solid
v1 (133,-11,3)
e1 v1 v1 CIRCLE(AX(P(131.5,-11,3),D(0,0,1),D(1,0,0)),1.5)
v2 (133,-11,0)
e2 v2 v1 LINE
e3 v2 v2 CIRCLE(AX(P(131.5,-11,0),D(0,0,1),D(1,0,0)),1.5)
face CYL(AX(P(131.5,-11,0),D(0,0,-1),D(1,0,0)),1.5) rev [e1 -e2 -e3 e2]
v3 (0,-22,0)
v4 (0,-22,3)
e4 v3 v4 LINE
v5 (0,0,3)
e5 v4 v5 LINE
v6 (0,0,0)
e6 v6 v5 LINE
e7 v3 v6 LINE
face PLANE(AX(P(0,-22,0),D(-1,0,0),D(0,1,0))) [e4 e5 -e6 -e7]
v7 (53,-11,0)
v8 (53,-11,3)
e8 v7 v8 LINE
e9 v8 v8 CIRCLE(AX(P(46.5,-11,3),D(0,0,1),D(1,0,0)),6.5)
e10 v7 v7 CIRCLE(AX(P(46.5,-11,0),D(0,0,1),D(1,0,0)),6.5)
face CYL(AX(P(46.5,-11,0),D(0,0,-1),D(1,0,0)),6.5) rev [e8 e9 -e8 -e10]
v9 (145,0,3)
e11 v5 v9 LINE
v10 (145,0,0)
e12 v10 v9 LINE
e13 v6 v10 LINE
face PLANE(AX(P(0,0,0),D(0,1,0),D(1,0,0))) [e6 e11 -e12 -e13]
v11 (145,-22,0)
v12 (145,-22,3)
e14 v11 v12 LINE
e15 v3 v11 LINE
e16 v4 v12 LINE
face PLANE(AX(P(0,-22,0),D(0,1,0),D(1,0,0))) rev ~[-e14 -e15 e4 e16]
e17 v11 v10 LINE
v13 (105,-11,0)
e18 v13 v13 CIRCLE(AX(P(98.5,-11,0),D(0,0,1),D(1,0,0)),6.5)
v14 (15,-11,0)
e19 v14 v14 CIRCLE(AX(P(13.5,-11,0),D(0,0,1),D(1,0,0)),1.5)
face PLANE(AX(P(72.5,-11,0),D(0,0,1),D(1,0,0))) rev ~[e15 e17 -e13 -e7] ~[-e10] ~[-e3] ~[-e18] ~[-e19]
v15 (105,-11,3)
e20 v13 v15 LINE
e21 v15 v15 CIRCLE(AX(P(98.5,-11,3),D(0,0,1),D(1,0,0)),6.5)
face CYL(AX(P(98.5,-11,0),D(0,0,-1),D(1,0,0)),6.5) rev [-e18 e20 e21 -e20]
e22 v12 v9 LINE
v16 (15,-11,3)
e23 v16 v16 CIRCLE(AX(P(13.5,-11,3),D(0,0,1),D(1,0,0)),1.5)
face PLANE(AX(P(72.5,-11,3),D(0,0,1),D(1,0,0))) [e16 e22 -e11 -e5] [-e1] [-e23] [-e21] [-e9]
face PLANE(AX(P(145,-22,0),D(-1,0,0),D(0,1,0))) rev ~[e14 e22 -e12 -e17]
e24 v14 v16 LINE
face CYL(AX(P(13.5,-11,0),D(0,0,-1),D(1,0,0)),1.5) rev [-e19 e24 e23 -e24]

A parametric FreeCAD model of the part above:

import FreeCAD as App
import Part
import Sketcher

V = App.Vector
Q = App.Units.Quantity


def add_polygon(sketch, points):
    """Adds a closed chain of lines whose ends are joined by coincident constraints."""
    first, n = sketch.GeometryCount, len(points)
    for a, b in zip(points, points[1:] + points[:1]):
        sketch.addGeometry(Part.LineSegment(App.Vector(*a, 0), App.Vector(*b, 0)), False)
    for i in range(n):
        sketch.addConstraint(Sketcher.Constraint("Coincident", first + i, 2, first + (i + 1) % n, 1))

doc = App.newDocument("Part")
body = doc.addObject("PartDesign::Body", "Body")

# Sketch on XY plane
sketch1 = body.newObject("Sketcher::SketchObject", "Sketch")
sketch1.AttachmentSupport = (doc.getObject("XY_Plane"), [""])
sketch1.MapMode = "FlatFace"
add_polygon(sketch1, [(0, 0), (0, -22), (145, -22), (145, 0)])  # lines 0-3
sketch1.addGeometry(Part.Circle(V(13.5, -11, 0), V(0, 0, 1), 1.5), False)  # 4
sketch1.addGeometry(Part.Circle(V(46.5, -11, 0), V(0, 0, 1), 6.5), False)  # 5
sketch1.addGeometry(Part.Circle(V(98.5, -11, 0), V(0, 0, 1), 6.5), False)  # 6
sketch1.addGeometry(Part.Circle(V(131.5, -11, 0), V(0, 0, 1), 1.5), False)  # 7
sketch1.addConstraint([
    Sketcher.Constraint("Vertical", 0),
    Sketcher.Constraint("Horizontal", 1),
    Sketcher.Constraint("Vertical", 2),
    Sketcher.Constraint("Horizontal", 3),
    Sketcher.Constraint("Coincident", 3, 2, -1, 1),
    Sketcher.Constraint("Equal", 5, 6),
    Sketcher.Constraint("Equal", 4, 7),
    Sketcher.Constraint("Horizontal", 4, 3, 5, 3),
    Sketcher.Constraint("Horizontal", 5, 3, 6, 3),
    Sketcher.Constraint("Horizontal", 6, 3, 7, 3),
    Sketcher.Constraint("Diameter", 4, Q("3 mm")),
    Sketcher.Constraint("Diameter", 5, Q("13 mm")),
    Sketcher.Constraint("DistanceX", 1, 1, 1, 2, Q("145 mm")),
    Sketcher.Constraint("DistanceY", 0, 2, 0, 1, Q("22 mm")),
    Sketcher.Constraint("DistanceY", 4, 3, -1, 1, Q("11 mm")),
    Sketcher.Constraint("DistanceX", 4, 3, 5, 3, Q("33 mm")),
    Sketcher.Constraint("DistanceX", 5, 3, 6, 3, Q("52 mm")),
    Sketcher.Constraint("DistanceX", 6, 3, 7, 3, Q("33 mm")),
    Sketcher.Constraint("DistanceX", -1, 1, 4, 3, Q("13.5 mm")),
])
pad1 = body.newObject("PartDesign::Pad", "Pad")
pad1.Profile = sketch1
pad1.Length = 3

doc.recompute()
